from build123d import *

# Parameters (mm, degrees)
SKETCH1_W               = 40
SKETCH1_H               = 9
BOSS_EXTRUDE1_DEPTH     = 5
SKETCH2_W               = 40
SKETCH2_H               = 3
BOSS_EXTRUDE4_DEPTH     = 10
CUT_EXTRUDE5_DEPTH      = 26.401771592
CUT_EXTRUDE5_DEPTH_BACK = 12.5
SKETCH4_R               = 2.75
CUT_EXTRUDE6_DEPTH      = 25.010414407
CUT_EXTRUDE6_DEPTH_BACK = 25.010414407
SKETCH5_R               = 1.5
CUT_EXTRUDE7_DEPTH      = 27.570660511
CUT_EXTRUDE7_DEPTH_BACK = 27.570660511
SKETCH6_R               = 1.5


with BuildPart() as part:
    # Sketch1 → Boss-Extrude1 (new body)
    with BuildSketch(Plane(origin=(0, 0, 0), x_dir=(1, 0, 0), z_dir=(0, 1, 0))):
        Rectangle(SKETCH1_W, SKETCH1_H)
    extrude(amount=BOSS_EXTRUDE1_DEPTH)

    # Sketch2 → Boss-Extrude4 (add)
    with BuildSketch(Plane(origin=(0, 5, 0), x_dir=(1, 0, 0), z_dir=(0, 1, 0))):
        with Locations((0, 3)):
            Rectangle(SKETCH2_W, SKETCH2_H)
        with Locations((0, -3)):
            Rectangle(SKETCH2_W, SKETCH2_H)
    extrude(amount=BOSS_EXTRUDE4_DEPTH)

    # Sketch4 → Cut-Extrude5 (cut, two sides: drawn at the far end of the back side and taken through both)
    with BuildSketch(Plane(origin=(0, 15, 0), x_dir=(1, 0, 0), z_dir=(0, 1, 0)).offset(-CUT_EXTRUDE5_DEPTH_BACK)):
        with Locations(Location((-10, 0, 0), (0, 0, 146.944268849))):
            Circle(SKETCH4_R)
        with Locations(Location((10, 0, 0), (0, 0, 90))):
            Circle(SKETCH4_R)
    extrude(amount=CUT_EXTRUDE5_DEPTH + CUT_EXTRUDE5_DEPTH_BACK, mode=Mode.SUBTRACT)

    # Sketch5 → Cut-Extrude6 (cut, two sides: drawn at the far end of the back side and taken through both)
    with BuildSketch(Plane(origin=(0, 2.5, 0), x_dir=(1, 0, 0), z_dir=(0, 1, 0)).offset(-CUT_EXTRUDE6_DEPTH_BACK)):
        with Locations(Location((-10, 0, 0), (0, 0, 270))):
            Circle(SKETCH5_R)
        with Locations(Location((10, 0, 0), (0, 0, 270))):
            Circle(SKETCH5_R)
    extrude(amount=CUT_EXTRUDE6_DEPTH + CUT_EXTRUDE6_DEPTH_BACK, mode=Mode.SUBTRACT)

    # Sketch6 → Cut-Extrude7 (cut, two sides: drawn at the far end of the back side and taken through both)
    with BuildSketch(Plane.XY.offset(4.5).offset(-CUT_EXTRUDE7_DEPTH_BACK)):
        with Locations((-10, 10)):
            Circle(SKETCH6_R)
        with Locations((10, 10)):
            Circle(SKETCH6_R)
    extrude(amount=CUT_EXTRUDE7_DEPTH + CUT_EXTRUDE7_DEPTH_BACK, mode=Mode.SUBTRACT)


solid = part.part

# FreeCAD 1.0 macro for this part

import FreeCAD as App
import Part
import Sketcher
from FreeCAD import Vector

doc = App.newDocument("Part")
body = doc.addObject("PartDesign::Body", "Body")

# Sketch on XZ plane
sketch1 = doc.addObject("Sketcher::SketchObject", "Sketch")
body.addObject(sketch1)
sketch1.AttachmentSupport = (doc.XZ_Plane, [""])
sketch1.MapMode = "FlatFace"
sketch1.addGeometry(Part.LineSegment(Vector(-20, -4, 0), Vector(-20, 4, 0)), False)
sketch1.addGeometry(Part.LineSegment(Vector(-20, 4, 0), Vector(20, 4, 0)), False)
sketch1.addGeometry(Part.LineSegment(Vector(20, 4, 0), Vector(20, -4, 0)), False)
sketch1.addGeometry(Part.LineSegment(Vector(20, -4, 0), Vector(-20, -4, 0)), False)
sketch1.addConstraint(Sketcher.Constraint("Coincident", 0, 2, 1, 1))
sketch1.addConstraint(Sketcher.Constraint("Coincident", 1, 2, 2, 1))
sketch1.addConstraint(Sketcher.Constraint("Coincident", 2, 2, 3, 1))
sketch1.addConstraint(Sketcher.Constraint("Coincident", 3, 2, 0, 1))
sketch1.addConstraint(Sketcher.Constraint("Vertical", 0))
sketch1.addConstraint(Sketcher.Constraint("Horizontal", 1))
sketch1.addConstraint(Sketcher.Constraint("Vertical", 2))
sketch1.addConstraint(Sketcher.Constraint("Horizontal", 3))
sketch1.addConstraint(Sketcher.Constraint("Symmetric", 0, 2, 2, 2, -1, 1))
sketch1.addConstraint(Sketcher.Constraint("DistanceX", 1, 1, 1, 2, 40.0))
sketch1.addConstraint(Sketcher.Constraint("DistanceY", 0, 1, 0, 2, 9.0))
pad1 = doc.addObject("PartDesign::Pad", "Pad")
body.addObject(pad1)
pad1.Profile = sketch1
pad1.Length = 5
pad1.Reversed = True

# Sketch on XZ plane
sketch2 = doc.addObject("Sketcher::SketchObject", "Sketch001")
body.addObject(sketch2)
sketch2.AttachmentSupport = (doc.XZ_Plane, [""])
sketch2.MapMode = "FlatFace"
sketch2.AttachmentOffset = App.Placement(Vector(0, 0, -5), App.Rotation())
sketch2.addGeometry(Part.LineSegment(Vector(-20, -4.5, 0), Vector(-20, -1.5, 0)), False)
sketch2.addGeometry(Part.LineSegment(Vector(-20, -1.5, 0), Vector(20, -1.5, 0)), False)
sketch2.addGeometry(Part.LineSegment(Vector(20, -1.5, 0), Vector(20, -4.5, 0)), False)
sketch2.addGeometry(Part.LineSegment(Vector(20, -4.5, 0), Vector(-20, -4.5, 0)), False)
sketch2.addGeometry(Part.LineSegment(Vector(-20, 1.5, 0), Vector(-20, 4.5, 0)), False)
sketch2.addGeometry(Part.LineSegment(Vector(-20, 4.5, 0), Vector(20, 4.5, 0)), False)
sketch2.addGeometry(Part.LineSegment(Vector(20, 4.5, 0), Vector(20, 1.5, 0)), False)
sketch2.addGeometry(Part.LineSegment(Vector(20, 1.5, 0), Vector(-20, 1.5, 0)), False)
sketch2.addConstraint(Sketcher.Constraint("Coincident", 0, 2, 1, 1))
sketch2.addConstraint(Sketcher.Constraint("Coincident", 1, 2, 2, 1))
sketch2.addConstraint(Sketcher.Constraint("Coincident", 2, 2, 3, 1))
sketch2.addConstraint(Sketcher.Constraint("Coincident", 3, 2, 0, 1))
sketch2.addConstraint(Sketcher.Constraint("Coincident", 4, 2, 5, 1))
sketch2.addConstraint(Sketcher.Constraint("Coincident", 5, 2, 6, 1))
sketch2.addConstraint(Sketcher.Constraint("Coincident", 6, 2, 7, 1))
sketch2.addConstraint(Sketcher.Constraint("Coincident", 7, 2, 4, 1))
sketch2.addConstraint(Sketcher.Constraint("Vertical", 0))
sketch2.addConstraint(Sketcher.Constraint("Horizontal", 1))
sketch2.addConstraint(Sketcher.Constraint("Vertical", 2))
sketch2.addConstraint(Sketcher.Constraint("Horizontal", 3))
sketch2.addConstraint(Sketcher.Constraint("Vertical", 4))
sketch2.addConstraint(Sketcher.Constraint("Horizontal", 5))
sketch2.addConstraint(Sketcher.Constraint("Vertical", 6))
sketch2.addConstraint(Sketcher.Constraint("Horizontal", 7))
sketch2.addConstraint(Sketcher.Constraint("Symmetric", 2, 2, 4, 2, -1, 1))
sketch2.addConstraint(Sketcher.Constraint("Symmetric", 0, 2, 6, 2, -1, 1))
sketch2.addConstraint(Sketcher.Constraint("Vertical", 3, 2, 4, 2))
sketch2.addConstraint(Sketcher.Constraint("DistanceX", 1, 1, 1, 2, 40.0))
sketch2.addConstraint(Sketcher.Constraint("DistanceY", 0, 1, 0, 2, 3.0))
sketch2.addConstraint(Sketcher.Constraint("DistanceY", 0, 2, 4, 2, 6.0))
pad2 = doc.addObject("PartDesign::Pad", "Pad001")
body.addObject(pad2)
pad2.Profile = sketch2
pad2.Length = 10
pad2.Reversed = True

# Sketch on XZ plane
sketch3 = doc.addObject("Sketcher::SketchObject", "Sketch002")
body.addObject(sketch3)
sketch3.AttachmentSupport = (doc.XZ_Plane, [""])
sketch3.MapMode = "FlatFace"
sketch3.AttachmentOffset = App.Placement(Vector(0, 0, -15), App.Rotation())
sketch3.addGeometry(Part.Circle(Vector(-10, 0, 0), Vector(0, 0, 1), 2.8), False)
sketch3.addGeometry(Part.Circle(Vector(10, 0, 0), Vector(0, 0, 1), 2.8), False)
sketch3.addConstraint(Sketcher.Constraint("Equal", 0, 1))
sketch3.addConstraint(Sketcher.Constraint("Symmetric", 0, 3, 1, 3, -1, 1))
sketch3.addConstraint(Sketcher.Constraint("PointOnObject", 0, 3, -1))
sketch3.addConstraint(Sketcher.Constraint("Diameter", 0, 5.5))
sketch3.addConstraint(Sketcher.Constraint("DistanceX", 0, 3, -1, 1, 10.0))
pocket1 = doc.addObject("PartDesign::Pocket", "Pocket")
body.addObject(pocket1)
pocket1.Profile = sketch3
pocket1.Type = "TwoLengths"
pocket1.Length = 26.401772
pocket1.Length2 = 12.5

# Sketch on XZ plane
sketch4 = doc.addObject("Sketcher::SketchObject", "Sketch003")
body.addObject(sketch4)
sketch4.AttachmentSupport = (doc.XZ_Plane, [""])
sketch4.MapMode = "FlatFace"
sketch4.AttachmentOffset = App.Placement(Vector(0, 0, -2.5), App.Rotation())
sketch4.addGeometry(Part.Circle(Vector(-10, 0, 0), Vector(0, 0, 1), 1.5), False)
sketch4.addGeometry(Part.Circle(Vector(10, 0, 0), Vector(0, 0, 1), 1.5), False)
sketch4.addConstraint(Sketcher.Constraint("Equal", 0, 1))
sketch4.addConstraint(Sketcher.Constraint("Symmetric", 0, 3, 1, 3, -1, 1))
sketch4.addConstraint(Sketcher.Constraint("PointOnObject", 0, 3, -1))
sketch4.addConstraint(Sketcher.Constraint("Diameter", 0, 3.0))
sketch4.addConstraint(Sketcher.Constraint("DistanceX", 0, 3, -1, 1, 10.0))
pocket2 = doc.addObject("PartDesign::Pocket", "Pocket001")
body.addObject(pocket2)
pocket2.Profile = sketch4
pocket2.Type = "ThroughAll"
pocket2.Midplane = True

# Sketch on XY plane
sketch5 = doc.addObject("Sketcher::SketchObject", "Sketch004")
body.addObject(sketch5)
sketch5.AttachmentSupport = (doc.XY_Plane, [""])
sketch5.MapMode = "FlatFace"
sketch5.AttachmentOffset = App.Placement(Vector(0, 0, 4.5), App.Rotation())
sketch5.addGeometry(Part.Circle(Vector(-10, 10, 0), Vector(0, 0, 1), 1.5), False)
sketch5.addGeometry(Part.Circle(Vector(10, 10, 0), Vector(0, 0, 1), 1.5), False)
sketch5.addConstraint(Sketcher.Constraint("Equal", 0, 1))
sketch5.addConstraint(Sketcher.Constraint("Symmetric", 0, 3, 1, 3, -2))
sketch5.addConstraint(Sketcher.Constraint("Diameter", 0, 3.0))
sketch5.addConstraint(Sketcher.Constraint("DistanceX", 0, 3, -1, 1, 10.0))
sketch5.addConstraint(Sketcher.Constraint("DistanceY", -1, 1, 0, 3, 10.0))
pocket3 = doc.addObject("PartDesign::Pocket", "Pocket002")
body.addObject(pocket3)
pocket3.Profile = sketch5
pocket3.Type = "ThroughAll"
pocket3.Midplane = True

doc.recompute()
